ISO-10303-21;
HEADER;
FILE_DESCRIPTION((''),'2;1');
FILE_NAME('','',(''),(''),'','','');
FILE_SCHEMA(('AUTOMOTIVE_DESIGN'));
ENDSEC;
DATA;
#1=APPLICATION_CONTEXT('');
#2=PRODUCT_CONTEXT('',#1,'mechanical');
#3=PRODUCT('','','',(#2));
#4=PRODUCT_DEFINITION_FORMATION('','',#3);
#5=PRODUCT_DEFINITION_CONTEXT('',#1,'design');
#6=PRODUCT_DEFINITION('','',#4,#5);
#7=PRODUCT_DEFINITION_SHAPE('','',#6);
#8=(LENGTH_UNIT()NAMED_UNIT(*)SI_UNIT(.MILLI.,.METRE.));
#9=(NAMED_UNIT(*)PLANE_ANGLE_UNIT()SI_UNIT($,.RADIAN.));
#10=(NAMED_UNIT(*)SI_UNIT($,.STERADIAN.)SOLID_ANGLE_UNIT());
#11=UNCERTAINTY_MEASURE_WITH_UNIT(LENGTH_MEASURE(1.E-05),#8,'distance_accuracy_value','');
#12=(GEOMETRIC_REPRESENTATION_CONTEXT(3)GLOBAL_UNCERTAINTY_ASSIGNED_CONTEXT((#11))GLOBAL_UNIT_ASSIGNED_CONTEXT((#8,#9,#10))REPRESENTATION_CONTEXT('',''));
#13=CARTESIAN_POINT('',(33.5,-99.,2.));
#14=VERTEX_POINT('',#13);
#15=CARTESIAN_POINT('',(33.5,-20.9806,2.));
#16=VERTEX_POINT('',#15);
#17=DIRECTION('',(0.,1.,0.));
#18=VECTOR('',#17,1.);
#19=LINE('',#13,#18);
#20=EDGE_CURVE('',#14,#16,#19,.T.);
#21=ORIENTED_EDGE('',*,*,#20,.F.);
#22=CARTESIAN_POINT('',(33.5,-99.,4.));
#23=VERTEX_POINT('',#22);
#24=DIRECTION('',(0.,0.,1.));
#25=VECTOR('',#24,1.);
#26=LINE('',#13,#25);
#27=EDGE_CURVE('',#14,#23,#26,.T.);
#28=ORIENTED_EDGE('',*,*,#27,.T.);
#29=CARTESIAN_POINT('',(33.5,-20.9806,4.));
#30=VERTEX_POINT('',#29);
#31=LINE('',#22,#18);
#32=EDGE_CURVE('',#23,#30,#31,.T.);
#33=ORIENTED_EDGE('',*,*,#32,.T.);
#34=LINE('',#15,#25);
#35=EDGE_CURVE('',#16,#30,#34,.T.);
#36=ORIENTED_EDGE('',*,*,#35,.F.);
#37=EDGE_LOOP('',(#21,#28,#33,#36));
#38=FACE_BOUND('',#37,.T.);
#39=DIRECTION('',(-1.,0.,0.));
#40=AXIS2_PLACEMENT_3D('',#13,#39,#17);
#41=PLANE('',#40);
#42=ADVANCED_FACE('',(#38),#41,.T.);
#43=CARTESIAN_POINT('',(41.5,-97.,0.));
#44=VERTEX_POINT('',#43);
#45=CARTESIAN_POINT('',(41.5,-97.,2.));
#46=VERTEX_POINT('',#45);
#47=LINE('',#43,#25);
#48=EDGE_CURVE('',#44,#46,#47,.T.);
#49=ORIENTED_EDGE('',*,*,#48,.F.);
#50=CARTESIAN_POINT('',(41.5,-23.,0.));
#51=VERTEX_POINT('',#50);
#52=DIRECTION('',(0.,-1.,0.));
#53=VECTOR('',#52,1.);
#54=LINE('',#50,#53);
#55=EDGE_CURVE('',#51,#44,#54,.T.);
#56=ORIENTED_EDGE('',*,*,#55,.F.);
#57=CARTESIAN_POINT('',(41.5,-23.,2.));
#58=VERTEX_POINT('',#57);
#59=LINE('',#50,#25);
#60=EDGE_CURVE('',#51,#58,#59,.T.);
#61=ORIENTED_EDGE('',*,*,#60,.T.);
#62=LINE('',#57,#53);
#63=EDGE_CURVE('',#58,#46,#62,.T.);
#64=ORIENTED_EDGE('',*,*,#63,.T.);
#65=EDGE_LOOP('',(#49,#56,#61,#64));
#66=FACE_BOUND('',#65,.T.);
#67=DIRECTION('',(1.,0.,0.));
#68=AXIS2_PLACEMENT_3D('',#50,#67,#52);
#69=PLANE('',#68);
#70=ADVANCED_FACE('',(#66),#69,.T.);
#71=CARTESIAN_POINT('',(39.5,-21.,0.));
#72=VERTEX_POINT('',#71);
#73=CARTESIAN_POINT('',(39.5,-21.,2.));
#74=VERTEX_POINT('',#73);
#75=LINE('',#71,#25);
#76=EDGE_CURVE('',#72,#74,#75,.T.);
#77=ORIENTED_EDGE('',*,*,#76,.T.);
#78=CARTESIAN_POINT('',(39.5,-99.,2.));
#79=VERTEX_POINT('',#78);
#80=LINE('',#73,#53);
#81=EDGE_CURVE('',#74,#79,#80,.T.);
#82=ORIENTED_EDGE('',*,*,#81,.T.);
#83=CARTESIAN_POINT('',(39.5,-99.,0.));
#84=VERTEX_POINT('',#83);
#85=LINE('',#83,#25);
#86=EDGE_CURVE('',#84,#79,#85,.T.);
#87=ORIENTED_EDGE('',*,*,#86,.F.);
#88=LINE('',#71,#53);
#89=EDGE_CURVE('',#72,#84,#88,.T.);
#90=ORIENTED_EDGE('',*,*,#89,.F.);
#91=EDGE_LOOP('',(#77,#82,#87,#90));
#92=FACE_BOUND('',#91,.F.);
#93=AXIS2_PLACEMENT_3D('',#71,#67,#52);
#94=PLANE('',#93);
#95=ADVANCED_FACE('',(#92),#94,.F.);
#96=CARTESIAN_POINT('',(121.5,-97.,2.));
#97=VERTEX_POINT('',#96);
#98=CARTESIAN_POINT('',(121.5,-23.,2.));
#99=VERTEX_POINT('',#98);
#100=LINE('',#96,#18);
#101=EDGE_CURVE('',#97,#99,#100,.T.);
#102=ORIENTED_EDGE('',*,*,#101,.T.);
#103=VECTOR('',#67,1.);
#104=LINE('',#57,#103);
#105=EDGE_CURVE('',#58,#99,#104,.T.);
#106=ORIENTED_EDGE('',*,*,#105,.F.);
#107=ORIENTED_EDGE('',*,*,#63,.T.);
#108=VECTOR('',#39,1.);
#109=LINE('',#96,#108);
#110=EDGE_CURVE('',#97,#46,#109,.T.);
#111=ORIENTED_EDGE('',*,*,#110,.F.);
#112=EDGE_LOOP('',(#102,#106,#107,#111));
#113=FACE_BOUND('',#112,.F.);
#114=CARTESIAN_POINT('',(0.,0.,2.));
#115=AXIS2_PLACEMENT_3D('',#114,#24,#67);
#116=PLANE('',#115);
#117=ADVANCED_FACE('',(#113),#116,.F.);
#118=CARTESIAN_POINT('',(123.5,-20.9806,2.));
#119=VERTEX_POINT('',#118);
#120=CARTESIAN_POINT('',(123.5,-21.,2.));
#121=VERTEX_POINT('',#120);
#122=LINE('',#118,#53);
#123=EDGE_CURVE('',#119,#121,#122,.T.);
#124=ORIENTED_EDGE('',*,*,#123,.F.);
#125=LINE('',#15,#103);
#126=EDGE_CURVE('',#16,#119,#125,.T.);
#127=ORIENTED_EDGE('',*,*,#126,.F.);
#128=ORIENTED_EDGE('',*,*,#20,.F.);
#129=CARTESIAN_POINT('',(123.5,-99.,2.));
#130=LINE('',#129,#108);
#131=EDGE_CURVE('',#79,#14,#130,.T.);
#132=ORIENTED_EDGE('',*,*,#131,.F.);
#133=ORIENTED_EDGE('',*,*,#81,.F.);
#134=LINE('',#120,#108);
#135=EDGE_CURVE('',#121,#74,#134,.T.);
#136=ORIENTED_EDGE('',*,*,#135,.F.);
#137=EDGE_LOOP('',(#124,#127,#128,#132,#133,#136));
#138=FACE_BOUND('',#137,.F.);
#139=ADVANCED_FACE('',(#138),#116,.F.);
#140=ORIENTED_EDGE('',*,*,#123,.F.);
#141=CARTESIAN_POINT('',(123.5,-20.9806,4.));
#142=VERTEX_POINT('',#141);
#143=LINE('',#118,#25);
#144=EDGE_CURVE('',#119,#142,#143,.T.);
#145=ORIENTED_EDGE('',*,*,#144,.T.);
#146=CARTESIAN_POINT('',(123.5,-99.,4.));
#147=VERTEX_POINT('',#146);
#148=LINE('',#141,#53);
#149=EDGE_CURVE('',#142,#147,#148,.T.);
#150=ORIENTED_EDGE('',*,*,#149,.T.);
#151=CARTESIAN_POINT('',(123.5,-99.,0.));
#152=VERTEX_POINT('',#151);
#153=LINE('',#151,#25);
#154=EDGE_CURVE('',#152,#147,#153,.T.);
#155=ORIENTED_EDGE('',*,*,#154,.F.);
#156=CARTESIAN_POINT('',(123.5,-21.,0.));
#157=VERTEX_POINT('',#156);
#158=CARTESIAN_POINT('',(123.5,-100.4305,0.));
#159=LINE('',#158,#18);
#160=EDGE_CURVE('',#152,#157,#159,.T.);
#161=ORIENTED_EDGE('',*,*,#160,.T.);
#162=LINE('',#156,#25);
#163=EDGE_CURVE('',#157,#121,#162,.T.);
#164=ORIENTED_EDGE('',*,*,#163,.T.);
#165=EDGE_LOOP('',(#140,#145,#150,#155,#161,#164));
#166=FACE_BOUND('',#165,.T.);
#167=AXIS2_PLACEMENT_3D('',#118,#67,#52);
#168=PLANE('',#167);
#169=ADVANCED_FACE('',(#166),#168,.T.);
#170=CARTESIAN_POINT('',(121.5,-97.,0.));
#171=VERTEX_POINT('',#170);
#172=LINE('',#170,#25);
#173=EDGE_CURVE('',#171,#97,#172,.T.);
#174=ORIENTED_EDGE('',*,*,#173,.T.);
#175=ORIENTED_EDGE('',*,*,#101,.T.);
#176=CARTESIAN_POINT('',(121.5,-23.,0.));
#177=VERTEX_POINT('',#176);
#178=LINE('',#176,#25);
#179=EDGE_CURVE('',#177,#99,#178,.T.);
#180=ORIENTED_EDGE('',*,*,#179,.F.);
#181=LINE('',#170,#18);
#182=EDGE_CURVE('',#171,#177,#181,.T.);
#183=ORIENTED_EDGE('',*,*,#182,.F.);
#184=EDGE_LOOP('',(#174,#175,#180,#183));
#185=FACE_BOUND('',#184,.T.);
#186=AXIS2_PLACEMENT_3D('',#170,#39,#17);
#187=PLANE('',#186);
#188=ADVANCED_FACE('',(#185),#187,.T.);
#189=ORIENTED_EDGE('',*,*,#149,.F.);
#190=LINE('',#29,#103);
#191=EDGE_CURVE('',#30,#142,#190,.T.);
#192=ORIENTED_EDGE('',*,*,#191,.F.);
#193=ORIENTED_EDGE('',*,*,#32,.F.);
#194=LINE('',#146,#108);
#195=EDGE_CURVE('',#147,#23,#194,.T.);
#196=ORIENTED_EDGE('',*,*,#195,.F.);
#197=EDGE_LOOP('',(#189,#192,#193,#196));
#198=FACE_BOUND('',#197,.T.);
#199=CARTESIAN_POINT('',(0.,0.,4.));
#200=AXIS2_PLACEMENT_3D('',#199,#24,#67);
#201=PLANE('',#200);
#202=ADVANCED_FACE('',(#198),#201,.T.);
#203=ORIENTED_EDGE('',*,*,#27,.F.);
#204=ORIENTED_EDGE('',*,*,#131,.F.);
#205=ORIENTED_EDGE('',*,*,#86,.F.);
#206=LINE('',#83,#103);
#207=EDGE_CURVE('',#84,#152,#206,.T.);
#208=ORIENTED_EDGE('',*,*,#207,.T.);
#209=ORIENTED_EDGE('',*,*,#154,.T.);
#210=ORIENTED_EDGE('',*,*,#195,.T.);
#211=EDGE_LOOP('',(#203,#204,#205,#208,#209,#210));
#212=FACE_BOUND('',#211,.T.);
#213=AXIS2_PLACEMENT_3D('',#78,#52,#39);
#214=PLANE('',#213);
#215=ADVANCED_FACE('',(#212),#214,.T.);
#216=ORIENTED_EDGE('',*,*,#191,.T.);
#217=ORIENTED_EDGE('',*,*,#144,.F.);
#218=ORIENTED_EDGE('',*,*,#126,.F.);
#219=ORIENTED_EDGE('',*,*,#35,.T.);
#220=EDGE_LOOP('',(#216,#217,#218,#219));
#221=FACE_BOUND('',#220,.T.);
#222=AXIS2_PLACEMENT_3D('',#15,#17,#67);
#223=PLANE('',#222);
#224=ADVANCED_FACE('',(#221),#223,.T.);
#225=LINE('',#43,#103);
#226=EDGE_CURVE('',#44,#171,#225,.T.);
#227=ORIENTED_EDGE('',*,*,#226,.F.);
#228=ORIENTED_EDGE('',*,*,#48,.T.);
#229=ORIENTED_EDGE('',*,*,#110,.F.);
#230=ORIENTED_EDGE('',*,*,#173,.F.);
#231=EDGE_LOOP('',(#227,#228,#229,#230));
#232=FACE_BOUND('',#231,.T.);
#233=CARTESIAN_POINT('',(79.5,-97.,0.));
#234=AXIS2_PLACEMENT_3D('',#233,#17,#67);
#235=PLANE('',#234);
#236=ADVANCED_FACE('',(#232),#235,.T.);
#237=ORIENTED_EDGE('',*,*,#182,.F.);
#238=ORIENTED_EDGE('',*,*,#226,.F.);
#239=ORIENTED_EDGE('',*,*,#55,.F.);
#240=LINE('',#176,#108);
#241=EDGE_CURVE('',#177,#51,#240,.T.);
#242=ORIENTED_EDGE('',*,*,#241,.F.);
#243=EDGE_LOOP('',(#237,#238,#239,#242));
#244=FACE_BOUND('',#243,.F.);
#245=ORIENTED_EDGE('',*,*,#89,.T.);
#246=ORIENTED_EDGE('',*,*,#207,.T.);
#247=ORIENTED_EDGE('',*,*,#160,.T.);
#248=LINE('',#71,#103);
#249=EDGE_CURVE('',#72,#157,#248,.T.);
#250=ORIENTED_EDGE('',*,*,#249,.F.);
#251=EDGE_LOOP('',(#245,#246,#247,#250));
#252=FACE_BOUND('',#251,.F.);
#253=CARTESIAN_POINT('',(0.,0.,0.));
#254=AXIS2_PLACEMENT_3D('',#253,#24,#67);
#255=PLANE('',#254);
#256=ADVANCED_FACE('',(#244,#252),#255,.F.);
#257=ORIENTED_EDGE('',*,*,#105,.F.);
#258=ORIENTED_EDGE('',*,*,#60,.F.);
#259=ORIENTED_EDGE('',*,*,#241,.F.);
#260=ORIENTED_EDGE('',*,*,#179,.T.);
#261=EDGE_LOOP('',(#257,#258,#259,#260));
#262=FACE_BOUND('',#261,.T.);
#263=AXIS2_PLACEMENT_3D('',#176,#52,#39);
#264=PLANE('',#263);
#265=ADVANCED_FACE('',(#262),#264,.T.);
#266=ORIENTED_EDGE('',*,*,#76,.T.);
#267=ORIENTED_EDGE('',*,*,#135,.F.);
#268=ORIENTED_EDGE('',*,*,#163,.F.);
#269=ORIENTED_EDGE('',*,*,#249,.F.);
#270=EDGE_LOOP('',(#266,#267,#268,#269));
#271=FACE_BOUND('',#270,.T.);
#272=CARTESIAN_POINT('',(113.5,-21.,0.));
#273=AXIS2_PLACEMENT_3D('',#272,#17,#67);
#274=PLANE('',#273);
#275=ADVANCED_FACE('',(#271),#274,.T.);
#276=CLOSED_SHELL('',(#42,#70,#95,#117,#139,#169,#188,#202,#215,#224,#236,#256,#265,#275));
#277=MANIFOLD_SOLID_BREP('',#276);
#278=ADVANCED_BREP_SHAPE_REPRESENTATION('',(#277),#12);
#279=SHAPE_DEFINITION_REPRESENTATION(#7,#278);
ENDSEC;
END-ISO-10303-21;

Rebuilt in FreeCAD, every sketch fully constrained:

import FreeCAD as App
import Part
import Sketcher
from FreeCAD import Vector

doc = App.newDocument("Part")
params = doc.addObject("Spreadsheet::Sheet", "Params")
for row, (alias, value) in enumerate([
    ("sketch1_width", "80 mm"),
    ("sketch1_height", "78 mm"),
    ("pad1_length", "2 mm"),
    ("sketch2_width", "90 mm"),
    ("pad2_length", "2 mm"),
], start=1):
    params.set(f"A{row}", alias)
    params.set(f"B{row}", "=" + value)
    params.setAlias(f"B{row}", alias)

body = doc.addObject("PartDesign::Body", "Body")

sketch1 = body.newObject("Sketcher::SketchObject", "Sketch")
sketch1.AttachmentSupport = (doc.getObject("XY_Plane"), [""])
sketch1.MapMode = "FlatFace"
sketch1.addGeometry([
    Part.LineSegment(Vector(124, -99, 0), Vector(124, -21, 0)),
    Part.LineSegment(Vector(124, -21, 0), Vector(40, -21, 0)),
    Part.LineSegment(Vector(40, -21, 0), Vector(40, -99, 0)),
    Part.LineSegment(Vector(40, -99, 0), Vector(124, -99, 0)),
    Part.LineSegment(Vector(122, -97, 0), Vector(42, -97, 0)),
    Part.LineSegment(Vector(42, -97, 0), Vector(42, -23, 0)),
    Part.LineSegment(Vector(42, -23, 0), Vector(122, -23, 0)),
    Part.LineSegment(Vector(122, -23, 0), Vector(122, -97, 0)),
], False)
sketch1.addConstraint([
    Sketcher.Constraint("Coincident", 0, 2, 1, 1),
    Sketcher.Constraint("Coincident", 1, 2, 2, 1),
    Sketcher.Constraint("Coincident", 2, 2, 3, 1),
    Sketcher.Constraint("Coincident", 3, 2, 0, 1),
    Sketcher.Constraint("Coincident", 4, 2, 5, 1),
    Sketcher.Constraint("Coincident", 5, 2, 6, 1),
    Sketcher.Constraint("Coincident", 6, 2, 7, 1),
    Sketcher.Constraint("Coincident", 7, 2, 4, 1),
    Sketcher.Constraint("Vertical", 0),
    Sketcher.Constraint("Horizontal", 1),
    Sketcher.Constraint("Vertical", 2),
    Sketcher.Constraint("Horizontal", 3),
    Sketcher.Constraint("Horizontal", 4),
    Sketcher.Constraint("Vertical", 5),
    Sketcher.Constraint("Horizontal", 6),
    Sketcher.Constraint("Vertical", 7),
    Sketcher.Constraint("DistanceX", 4, 2, 4, 1, 80.0),
    Sketcher.Constraint("DistanceX", 2, 2, 4, 2, 2.0),
    Sketcher.Constraint("DistanceY", 2, 2, 4, 2, 2.0),
    Sketcher.Constraint("DistanceY", 5, 2, 1, 2, 2.0),
    Sketcher.Constraint("DistanceX", 6, 2, 0, 2, 2.0),
    Sketcher.Constraint("DistanceY", 0, 1, 0, 2, 78.0),
    Sketcher.Constraint("DistanceY", 0, 2, -1, 1, 21.0),
    Sketcher.Constraint("DistanceX", -1, 1, 0, 2, 123.5),
])
sketch1.setExpression("Constraints[16]", "Params.sketch1_width")
sketch1.setExpression("Constraints[21]", "Params.sketch1_height")
pad1 = body.newObject("PartDesign::Pad", "Pad")
pad1.Profile = sketch1
pad1.setExpression("Length", "Params.pad1_length")

sketch2 = body.newObject("Sketcher::SketchObject", "Sketch001")
sketch2.AttachmentSupport = (doc.getObject("XY_Plane"), [""])
sketch2.MapMode = "FlatFace"
sketch2.AttachmentOffset = App.Placement(Vector(0, 0, 2), App.Rotation())
sketch2.addGeometry([
    Part.LineSegment(Vector(34, -99, 0), Vector(124, -99, 0)),
    Part.LineSegment(Vector(124, -99, 0), Vector(124, -21, 0)),
    Part.LineSegment(Vector(124, -21, 0), Vector(34, -21, 0)),
    Part.LineSegment(Vector(34, -21, 0), Vector(34, -99, 0)),
], False)
sketch2.addConstraint([
    Sketcher.Constraint("Coincident", 0, 2, 1, 1),
    Sketcher.Constraint("Coincident", 1, 2, 2, 1),
    Sketcher.Constraint("Coincident", 2, 2, 3, 1),
    Sketcher.Constraint("Coincident", 3, 2, 0, 1),
    Sketcher.Constraint("Horizontal", 0),
    Sketcher.Constraint("Vertical", 1),
    Sketcher.Constraint("Horizontal", 2),
    Sketcher.Constraint("Vertical", 3),
    Sketcher.Constraint("DistanceX", 0, 1, 0, 2, 90.0),
    Sketcher.Constraint("DistanceY", 1, 1, 1, 2, 78.0194),
    Sketcher.Constraint("DistanceY", 0, 2, -1, 1, 99.0),
    Sketcher.Constraint("DistanceX", -1, 1, 0, 2, 123.5),
])
sketch2.setExpression("Constraints[8]", "Params.sketch2_width")
pad2 = body.newObject("PartDesign::Pad", "Pad001")
pad2.Profile = sketch2
pad2.setExpression("Length", "Params.pad2_length")

doc.recompute()
